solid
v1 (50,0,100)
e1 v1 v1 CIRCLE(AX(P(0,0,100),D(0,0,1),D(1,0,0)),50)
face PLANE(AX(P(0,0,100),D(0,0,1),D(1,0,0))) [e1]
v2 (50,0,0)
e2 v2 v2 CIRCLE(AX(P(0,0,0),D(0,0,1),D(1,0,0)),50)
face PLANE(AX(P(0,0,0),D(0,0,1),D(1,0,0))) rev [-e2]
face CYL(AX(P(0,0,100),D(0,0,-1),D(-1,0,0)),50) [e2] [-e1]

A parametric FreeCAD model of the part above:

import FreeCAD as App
import Part
import Sketcher

doc = App.newDocument("Part")
body = doc.addObject("PartDesign::Body", "Body")

# Sketch on XY plane
sketch1 = body.newObject("Sketcher::SketchObject", "Sketch")
sketch1.AttachmentSupport = (doc.getObject("XY_Plane"), [""])
sketch1.MapMode = "FlatFace"
sketch1.addGeometry(Part.Circle(App.Vector(0, 0, 0), App.Vector(0, 0, 1), 50), False)
sketch1.addConstraint(Sketcher.Constraint("Coincident", 0, 3, -1, 1))
sketch1.addConstraint(Sketcher.Constraint("Diameter", 0, 100.0))
pad1 = body.newObject("PartDesign::Pad", "Pad")
pad1.Profile = sketch1
pad1.Length = 100

doc.recompute()
